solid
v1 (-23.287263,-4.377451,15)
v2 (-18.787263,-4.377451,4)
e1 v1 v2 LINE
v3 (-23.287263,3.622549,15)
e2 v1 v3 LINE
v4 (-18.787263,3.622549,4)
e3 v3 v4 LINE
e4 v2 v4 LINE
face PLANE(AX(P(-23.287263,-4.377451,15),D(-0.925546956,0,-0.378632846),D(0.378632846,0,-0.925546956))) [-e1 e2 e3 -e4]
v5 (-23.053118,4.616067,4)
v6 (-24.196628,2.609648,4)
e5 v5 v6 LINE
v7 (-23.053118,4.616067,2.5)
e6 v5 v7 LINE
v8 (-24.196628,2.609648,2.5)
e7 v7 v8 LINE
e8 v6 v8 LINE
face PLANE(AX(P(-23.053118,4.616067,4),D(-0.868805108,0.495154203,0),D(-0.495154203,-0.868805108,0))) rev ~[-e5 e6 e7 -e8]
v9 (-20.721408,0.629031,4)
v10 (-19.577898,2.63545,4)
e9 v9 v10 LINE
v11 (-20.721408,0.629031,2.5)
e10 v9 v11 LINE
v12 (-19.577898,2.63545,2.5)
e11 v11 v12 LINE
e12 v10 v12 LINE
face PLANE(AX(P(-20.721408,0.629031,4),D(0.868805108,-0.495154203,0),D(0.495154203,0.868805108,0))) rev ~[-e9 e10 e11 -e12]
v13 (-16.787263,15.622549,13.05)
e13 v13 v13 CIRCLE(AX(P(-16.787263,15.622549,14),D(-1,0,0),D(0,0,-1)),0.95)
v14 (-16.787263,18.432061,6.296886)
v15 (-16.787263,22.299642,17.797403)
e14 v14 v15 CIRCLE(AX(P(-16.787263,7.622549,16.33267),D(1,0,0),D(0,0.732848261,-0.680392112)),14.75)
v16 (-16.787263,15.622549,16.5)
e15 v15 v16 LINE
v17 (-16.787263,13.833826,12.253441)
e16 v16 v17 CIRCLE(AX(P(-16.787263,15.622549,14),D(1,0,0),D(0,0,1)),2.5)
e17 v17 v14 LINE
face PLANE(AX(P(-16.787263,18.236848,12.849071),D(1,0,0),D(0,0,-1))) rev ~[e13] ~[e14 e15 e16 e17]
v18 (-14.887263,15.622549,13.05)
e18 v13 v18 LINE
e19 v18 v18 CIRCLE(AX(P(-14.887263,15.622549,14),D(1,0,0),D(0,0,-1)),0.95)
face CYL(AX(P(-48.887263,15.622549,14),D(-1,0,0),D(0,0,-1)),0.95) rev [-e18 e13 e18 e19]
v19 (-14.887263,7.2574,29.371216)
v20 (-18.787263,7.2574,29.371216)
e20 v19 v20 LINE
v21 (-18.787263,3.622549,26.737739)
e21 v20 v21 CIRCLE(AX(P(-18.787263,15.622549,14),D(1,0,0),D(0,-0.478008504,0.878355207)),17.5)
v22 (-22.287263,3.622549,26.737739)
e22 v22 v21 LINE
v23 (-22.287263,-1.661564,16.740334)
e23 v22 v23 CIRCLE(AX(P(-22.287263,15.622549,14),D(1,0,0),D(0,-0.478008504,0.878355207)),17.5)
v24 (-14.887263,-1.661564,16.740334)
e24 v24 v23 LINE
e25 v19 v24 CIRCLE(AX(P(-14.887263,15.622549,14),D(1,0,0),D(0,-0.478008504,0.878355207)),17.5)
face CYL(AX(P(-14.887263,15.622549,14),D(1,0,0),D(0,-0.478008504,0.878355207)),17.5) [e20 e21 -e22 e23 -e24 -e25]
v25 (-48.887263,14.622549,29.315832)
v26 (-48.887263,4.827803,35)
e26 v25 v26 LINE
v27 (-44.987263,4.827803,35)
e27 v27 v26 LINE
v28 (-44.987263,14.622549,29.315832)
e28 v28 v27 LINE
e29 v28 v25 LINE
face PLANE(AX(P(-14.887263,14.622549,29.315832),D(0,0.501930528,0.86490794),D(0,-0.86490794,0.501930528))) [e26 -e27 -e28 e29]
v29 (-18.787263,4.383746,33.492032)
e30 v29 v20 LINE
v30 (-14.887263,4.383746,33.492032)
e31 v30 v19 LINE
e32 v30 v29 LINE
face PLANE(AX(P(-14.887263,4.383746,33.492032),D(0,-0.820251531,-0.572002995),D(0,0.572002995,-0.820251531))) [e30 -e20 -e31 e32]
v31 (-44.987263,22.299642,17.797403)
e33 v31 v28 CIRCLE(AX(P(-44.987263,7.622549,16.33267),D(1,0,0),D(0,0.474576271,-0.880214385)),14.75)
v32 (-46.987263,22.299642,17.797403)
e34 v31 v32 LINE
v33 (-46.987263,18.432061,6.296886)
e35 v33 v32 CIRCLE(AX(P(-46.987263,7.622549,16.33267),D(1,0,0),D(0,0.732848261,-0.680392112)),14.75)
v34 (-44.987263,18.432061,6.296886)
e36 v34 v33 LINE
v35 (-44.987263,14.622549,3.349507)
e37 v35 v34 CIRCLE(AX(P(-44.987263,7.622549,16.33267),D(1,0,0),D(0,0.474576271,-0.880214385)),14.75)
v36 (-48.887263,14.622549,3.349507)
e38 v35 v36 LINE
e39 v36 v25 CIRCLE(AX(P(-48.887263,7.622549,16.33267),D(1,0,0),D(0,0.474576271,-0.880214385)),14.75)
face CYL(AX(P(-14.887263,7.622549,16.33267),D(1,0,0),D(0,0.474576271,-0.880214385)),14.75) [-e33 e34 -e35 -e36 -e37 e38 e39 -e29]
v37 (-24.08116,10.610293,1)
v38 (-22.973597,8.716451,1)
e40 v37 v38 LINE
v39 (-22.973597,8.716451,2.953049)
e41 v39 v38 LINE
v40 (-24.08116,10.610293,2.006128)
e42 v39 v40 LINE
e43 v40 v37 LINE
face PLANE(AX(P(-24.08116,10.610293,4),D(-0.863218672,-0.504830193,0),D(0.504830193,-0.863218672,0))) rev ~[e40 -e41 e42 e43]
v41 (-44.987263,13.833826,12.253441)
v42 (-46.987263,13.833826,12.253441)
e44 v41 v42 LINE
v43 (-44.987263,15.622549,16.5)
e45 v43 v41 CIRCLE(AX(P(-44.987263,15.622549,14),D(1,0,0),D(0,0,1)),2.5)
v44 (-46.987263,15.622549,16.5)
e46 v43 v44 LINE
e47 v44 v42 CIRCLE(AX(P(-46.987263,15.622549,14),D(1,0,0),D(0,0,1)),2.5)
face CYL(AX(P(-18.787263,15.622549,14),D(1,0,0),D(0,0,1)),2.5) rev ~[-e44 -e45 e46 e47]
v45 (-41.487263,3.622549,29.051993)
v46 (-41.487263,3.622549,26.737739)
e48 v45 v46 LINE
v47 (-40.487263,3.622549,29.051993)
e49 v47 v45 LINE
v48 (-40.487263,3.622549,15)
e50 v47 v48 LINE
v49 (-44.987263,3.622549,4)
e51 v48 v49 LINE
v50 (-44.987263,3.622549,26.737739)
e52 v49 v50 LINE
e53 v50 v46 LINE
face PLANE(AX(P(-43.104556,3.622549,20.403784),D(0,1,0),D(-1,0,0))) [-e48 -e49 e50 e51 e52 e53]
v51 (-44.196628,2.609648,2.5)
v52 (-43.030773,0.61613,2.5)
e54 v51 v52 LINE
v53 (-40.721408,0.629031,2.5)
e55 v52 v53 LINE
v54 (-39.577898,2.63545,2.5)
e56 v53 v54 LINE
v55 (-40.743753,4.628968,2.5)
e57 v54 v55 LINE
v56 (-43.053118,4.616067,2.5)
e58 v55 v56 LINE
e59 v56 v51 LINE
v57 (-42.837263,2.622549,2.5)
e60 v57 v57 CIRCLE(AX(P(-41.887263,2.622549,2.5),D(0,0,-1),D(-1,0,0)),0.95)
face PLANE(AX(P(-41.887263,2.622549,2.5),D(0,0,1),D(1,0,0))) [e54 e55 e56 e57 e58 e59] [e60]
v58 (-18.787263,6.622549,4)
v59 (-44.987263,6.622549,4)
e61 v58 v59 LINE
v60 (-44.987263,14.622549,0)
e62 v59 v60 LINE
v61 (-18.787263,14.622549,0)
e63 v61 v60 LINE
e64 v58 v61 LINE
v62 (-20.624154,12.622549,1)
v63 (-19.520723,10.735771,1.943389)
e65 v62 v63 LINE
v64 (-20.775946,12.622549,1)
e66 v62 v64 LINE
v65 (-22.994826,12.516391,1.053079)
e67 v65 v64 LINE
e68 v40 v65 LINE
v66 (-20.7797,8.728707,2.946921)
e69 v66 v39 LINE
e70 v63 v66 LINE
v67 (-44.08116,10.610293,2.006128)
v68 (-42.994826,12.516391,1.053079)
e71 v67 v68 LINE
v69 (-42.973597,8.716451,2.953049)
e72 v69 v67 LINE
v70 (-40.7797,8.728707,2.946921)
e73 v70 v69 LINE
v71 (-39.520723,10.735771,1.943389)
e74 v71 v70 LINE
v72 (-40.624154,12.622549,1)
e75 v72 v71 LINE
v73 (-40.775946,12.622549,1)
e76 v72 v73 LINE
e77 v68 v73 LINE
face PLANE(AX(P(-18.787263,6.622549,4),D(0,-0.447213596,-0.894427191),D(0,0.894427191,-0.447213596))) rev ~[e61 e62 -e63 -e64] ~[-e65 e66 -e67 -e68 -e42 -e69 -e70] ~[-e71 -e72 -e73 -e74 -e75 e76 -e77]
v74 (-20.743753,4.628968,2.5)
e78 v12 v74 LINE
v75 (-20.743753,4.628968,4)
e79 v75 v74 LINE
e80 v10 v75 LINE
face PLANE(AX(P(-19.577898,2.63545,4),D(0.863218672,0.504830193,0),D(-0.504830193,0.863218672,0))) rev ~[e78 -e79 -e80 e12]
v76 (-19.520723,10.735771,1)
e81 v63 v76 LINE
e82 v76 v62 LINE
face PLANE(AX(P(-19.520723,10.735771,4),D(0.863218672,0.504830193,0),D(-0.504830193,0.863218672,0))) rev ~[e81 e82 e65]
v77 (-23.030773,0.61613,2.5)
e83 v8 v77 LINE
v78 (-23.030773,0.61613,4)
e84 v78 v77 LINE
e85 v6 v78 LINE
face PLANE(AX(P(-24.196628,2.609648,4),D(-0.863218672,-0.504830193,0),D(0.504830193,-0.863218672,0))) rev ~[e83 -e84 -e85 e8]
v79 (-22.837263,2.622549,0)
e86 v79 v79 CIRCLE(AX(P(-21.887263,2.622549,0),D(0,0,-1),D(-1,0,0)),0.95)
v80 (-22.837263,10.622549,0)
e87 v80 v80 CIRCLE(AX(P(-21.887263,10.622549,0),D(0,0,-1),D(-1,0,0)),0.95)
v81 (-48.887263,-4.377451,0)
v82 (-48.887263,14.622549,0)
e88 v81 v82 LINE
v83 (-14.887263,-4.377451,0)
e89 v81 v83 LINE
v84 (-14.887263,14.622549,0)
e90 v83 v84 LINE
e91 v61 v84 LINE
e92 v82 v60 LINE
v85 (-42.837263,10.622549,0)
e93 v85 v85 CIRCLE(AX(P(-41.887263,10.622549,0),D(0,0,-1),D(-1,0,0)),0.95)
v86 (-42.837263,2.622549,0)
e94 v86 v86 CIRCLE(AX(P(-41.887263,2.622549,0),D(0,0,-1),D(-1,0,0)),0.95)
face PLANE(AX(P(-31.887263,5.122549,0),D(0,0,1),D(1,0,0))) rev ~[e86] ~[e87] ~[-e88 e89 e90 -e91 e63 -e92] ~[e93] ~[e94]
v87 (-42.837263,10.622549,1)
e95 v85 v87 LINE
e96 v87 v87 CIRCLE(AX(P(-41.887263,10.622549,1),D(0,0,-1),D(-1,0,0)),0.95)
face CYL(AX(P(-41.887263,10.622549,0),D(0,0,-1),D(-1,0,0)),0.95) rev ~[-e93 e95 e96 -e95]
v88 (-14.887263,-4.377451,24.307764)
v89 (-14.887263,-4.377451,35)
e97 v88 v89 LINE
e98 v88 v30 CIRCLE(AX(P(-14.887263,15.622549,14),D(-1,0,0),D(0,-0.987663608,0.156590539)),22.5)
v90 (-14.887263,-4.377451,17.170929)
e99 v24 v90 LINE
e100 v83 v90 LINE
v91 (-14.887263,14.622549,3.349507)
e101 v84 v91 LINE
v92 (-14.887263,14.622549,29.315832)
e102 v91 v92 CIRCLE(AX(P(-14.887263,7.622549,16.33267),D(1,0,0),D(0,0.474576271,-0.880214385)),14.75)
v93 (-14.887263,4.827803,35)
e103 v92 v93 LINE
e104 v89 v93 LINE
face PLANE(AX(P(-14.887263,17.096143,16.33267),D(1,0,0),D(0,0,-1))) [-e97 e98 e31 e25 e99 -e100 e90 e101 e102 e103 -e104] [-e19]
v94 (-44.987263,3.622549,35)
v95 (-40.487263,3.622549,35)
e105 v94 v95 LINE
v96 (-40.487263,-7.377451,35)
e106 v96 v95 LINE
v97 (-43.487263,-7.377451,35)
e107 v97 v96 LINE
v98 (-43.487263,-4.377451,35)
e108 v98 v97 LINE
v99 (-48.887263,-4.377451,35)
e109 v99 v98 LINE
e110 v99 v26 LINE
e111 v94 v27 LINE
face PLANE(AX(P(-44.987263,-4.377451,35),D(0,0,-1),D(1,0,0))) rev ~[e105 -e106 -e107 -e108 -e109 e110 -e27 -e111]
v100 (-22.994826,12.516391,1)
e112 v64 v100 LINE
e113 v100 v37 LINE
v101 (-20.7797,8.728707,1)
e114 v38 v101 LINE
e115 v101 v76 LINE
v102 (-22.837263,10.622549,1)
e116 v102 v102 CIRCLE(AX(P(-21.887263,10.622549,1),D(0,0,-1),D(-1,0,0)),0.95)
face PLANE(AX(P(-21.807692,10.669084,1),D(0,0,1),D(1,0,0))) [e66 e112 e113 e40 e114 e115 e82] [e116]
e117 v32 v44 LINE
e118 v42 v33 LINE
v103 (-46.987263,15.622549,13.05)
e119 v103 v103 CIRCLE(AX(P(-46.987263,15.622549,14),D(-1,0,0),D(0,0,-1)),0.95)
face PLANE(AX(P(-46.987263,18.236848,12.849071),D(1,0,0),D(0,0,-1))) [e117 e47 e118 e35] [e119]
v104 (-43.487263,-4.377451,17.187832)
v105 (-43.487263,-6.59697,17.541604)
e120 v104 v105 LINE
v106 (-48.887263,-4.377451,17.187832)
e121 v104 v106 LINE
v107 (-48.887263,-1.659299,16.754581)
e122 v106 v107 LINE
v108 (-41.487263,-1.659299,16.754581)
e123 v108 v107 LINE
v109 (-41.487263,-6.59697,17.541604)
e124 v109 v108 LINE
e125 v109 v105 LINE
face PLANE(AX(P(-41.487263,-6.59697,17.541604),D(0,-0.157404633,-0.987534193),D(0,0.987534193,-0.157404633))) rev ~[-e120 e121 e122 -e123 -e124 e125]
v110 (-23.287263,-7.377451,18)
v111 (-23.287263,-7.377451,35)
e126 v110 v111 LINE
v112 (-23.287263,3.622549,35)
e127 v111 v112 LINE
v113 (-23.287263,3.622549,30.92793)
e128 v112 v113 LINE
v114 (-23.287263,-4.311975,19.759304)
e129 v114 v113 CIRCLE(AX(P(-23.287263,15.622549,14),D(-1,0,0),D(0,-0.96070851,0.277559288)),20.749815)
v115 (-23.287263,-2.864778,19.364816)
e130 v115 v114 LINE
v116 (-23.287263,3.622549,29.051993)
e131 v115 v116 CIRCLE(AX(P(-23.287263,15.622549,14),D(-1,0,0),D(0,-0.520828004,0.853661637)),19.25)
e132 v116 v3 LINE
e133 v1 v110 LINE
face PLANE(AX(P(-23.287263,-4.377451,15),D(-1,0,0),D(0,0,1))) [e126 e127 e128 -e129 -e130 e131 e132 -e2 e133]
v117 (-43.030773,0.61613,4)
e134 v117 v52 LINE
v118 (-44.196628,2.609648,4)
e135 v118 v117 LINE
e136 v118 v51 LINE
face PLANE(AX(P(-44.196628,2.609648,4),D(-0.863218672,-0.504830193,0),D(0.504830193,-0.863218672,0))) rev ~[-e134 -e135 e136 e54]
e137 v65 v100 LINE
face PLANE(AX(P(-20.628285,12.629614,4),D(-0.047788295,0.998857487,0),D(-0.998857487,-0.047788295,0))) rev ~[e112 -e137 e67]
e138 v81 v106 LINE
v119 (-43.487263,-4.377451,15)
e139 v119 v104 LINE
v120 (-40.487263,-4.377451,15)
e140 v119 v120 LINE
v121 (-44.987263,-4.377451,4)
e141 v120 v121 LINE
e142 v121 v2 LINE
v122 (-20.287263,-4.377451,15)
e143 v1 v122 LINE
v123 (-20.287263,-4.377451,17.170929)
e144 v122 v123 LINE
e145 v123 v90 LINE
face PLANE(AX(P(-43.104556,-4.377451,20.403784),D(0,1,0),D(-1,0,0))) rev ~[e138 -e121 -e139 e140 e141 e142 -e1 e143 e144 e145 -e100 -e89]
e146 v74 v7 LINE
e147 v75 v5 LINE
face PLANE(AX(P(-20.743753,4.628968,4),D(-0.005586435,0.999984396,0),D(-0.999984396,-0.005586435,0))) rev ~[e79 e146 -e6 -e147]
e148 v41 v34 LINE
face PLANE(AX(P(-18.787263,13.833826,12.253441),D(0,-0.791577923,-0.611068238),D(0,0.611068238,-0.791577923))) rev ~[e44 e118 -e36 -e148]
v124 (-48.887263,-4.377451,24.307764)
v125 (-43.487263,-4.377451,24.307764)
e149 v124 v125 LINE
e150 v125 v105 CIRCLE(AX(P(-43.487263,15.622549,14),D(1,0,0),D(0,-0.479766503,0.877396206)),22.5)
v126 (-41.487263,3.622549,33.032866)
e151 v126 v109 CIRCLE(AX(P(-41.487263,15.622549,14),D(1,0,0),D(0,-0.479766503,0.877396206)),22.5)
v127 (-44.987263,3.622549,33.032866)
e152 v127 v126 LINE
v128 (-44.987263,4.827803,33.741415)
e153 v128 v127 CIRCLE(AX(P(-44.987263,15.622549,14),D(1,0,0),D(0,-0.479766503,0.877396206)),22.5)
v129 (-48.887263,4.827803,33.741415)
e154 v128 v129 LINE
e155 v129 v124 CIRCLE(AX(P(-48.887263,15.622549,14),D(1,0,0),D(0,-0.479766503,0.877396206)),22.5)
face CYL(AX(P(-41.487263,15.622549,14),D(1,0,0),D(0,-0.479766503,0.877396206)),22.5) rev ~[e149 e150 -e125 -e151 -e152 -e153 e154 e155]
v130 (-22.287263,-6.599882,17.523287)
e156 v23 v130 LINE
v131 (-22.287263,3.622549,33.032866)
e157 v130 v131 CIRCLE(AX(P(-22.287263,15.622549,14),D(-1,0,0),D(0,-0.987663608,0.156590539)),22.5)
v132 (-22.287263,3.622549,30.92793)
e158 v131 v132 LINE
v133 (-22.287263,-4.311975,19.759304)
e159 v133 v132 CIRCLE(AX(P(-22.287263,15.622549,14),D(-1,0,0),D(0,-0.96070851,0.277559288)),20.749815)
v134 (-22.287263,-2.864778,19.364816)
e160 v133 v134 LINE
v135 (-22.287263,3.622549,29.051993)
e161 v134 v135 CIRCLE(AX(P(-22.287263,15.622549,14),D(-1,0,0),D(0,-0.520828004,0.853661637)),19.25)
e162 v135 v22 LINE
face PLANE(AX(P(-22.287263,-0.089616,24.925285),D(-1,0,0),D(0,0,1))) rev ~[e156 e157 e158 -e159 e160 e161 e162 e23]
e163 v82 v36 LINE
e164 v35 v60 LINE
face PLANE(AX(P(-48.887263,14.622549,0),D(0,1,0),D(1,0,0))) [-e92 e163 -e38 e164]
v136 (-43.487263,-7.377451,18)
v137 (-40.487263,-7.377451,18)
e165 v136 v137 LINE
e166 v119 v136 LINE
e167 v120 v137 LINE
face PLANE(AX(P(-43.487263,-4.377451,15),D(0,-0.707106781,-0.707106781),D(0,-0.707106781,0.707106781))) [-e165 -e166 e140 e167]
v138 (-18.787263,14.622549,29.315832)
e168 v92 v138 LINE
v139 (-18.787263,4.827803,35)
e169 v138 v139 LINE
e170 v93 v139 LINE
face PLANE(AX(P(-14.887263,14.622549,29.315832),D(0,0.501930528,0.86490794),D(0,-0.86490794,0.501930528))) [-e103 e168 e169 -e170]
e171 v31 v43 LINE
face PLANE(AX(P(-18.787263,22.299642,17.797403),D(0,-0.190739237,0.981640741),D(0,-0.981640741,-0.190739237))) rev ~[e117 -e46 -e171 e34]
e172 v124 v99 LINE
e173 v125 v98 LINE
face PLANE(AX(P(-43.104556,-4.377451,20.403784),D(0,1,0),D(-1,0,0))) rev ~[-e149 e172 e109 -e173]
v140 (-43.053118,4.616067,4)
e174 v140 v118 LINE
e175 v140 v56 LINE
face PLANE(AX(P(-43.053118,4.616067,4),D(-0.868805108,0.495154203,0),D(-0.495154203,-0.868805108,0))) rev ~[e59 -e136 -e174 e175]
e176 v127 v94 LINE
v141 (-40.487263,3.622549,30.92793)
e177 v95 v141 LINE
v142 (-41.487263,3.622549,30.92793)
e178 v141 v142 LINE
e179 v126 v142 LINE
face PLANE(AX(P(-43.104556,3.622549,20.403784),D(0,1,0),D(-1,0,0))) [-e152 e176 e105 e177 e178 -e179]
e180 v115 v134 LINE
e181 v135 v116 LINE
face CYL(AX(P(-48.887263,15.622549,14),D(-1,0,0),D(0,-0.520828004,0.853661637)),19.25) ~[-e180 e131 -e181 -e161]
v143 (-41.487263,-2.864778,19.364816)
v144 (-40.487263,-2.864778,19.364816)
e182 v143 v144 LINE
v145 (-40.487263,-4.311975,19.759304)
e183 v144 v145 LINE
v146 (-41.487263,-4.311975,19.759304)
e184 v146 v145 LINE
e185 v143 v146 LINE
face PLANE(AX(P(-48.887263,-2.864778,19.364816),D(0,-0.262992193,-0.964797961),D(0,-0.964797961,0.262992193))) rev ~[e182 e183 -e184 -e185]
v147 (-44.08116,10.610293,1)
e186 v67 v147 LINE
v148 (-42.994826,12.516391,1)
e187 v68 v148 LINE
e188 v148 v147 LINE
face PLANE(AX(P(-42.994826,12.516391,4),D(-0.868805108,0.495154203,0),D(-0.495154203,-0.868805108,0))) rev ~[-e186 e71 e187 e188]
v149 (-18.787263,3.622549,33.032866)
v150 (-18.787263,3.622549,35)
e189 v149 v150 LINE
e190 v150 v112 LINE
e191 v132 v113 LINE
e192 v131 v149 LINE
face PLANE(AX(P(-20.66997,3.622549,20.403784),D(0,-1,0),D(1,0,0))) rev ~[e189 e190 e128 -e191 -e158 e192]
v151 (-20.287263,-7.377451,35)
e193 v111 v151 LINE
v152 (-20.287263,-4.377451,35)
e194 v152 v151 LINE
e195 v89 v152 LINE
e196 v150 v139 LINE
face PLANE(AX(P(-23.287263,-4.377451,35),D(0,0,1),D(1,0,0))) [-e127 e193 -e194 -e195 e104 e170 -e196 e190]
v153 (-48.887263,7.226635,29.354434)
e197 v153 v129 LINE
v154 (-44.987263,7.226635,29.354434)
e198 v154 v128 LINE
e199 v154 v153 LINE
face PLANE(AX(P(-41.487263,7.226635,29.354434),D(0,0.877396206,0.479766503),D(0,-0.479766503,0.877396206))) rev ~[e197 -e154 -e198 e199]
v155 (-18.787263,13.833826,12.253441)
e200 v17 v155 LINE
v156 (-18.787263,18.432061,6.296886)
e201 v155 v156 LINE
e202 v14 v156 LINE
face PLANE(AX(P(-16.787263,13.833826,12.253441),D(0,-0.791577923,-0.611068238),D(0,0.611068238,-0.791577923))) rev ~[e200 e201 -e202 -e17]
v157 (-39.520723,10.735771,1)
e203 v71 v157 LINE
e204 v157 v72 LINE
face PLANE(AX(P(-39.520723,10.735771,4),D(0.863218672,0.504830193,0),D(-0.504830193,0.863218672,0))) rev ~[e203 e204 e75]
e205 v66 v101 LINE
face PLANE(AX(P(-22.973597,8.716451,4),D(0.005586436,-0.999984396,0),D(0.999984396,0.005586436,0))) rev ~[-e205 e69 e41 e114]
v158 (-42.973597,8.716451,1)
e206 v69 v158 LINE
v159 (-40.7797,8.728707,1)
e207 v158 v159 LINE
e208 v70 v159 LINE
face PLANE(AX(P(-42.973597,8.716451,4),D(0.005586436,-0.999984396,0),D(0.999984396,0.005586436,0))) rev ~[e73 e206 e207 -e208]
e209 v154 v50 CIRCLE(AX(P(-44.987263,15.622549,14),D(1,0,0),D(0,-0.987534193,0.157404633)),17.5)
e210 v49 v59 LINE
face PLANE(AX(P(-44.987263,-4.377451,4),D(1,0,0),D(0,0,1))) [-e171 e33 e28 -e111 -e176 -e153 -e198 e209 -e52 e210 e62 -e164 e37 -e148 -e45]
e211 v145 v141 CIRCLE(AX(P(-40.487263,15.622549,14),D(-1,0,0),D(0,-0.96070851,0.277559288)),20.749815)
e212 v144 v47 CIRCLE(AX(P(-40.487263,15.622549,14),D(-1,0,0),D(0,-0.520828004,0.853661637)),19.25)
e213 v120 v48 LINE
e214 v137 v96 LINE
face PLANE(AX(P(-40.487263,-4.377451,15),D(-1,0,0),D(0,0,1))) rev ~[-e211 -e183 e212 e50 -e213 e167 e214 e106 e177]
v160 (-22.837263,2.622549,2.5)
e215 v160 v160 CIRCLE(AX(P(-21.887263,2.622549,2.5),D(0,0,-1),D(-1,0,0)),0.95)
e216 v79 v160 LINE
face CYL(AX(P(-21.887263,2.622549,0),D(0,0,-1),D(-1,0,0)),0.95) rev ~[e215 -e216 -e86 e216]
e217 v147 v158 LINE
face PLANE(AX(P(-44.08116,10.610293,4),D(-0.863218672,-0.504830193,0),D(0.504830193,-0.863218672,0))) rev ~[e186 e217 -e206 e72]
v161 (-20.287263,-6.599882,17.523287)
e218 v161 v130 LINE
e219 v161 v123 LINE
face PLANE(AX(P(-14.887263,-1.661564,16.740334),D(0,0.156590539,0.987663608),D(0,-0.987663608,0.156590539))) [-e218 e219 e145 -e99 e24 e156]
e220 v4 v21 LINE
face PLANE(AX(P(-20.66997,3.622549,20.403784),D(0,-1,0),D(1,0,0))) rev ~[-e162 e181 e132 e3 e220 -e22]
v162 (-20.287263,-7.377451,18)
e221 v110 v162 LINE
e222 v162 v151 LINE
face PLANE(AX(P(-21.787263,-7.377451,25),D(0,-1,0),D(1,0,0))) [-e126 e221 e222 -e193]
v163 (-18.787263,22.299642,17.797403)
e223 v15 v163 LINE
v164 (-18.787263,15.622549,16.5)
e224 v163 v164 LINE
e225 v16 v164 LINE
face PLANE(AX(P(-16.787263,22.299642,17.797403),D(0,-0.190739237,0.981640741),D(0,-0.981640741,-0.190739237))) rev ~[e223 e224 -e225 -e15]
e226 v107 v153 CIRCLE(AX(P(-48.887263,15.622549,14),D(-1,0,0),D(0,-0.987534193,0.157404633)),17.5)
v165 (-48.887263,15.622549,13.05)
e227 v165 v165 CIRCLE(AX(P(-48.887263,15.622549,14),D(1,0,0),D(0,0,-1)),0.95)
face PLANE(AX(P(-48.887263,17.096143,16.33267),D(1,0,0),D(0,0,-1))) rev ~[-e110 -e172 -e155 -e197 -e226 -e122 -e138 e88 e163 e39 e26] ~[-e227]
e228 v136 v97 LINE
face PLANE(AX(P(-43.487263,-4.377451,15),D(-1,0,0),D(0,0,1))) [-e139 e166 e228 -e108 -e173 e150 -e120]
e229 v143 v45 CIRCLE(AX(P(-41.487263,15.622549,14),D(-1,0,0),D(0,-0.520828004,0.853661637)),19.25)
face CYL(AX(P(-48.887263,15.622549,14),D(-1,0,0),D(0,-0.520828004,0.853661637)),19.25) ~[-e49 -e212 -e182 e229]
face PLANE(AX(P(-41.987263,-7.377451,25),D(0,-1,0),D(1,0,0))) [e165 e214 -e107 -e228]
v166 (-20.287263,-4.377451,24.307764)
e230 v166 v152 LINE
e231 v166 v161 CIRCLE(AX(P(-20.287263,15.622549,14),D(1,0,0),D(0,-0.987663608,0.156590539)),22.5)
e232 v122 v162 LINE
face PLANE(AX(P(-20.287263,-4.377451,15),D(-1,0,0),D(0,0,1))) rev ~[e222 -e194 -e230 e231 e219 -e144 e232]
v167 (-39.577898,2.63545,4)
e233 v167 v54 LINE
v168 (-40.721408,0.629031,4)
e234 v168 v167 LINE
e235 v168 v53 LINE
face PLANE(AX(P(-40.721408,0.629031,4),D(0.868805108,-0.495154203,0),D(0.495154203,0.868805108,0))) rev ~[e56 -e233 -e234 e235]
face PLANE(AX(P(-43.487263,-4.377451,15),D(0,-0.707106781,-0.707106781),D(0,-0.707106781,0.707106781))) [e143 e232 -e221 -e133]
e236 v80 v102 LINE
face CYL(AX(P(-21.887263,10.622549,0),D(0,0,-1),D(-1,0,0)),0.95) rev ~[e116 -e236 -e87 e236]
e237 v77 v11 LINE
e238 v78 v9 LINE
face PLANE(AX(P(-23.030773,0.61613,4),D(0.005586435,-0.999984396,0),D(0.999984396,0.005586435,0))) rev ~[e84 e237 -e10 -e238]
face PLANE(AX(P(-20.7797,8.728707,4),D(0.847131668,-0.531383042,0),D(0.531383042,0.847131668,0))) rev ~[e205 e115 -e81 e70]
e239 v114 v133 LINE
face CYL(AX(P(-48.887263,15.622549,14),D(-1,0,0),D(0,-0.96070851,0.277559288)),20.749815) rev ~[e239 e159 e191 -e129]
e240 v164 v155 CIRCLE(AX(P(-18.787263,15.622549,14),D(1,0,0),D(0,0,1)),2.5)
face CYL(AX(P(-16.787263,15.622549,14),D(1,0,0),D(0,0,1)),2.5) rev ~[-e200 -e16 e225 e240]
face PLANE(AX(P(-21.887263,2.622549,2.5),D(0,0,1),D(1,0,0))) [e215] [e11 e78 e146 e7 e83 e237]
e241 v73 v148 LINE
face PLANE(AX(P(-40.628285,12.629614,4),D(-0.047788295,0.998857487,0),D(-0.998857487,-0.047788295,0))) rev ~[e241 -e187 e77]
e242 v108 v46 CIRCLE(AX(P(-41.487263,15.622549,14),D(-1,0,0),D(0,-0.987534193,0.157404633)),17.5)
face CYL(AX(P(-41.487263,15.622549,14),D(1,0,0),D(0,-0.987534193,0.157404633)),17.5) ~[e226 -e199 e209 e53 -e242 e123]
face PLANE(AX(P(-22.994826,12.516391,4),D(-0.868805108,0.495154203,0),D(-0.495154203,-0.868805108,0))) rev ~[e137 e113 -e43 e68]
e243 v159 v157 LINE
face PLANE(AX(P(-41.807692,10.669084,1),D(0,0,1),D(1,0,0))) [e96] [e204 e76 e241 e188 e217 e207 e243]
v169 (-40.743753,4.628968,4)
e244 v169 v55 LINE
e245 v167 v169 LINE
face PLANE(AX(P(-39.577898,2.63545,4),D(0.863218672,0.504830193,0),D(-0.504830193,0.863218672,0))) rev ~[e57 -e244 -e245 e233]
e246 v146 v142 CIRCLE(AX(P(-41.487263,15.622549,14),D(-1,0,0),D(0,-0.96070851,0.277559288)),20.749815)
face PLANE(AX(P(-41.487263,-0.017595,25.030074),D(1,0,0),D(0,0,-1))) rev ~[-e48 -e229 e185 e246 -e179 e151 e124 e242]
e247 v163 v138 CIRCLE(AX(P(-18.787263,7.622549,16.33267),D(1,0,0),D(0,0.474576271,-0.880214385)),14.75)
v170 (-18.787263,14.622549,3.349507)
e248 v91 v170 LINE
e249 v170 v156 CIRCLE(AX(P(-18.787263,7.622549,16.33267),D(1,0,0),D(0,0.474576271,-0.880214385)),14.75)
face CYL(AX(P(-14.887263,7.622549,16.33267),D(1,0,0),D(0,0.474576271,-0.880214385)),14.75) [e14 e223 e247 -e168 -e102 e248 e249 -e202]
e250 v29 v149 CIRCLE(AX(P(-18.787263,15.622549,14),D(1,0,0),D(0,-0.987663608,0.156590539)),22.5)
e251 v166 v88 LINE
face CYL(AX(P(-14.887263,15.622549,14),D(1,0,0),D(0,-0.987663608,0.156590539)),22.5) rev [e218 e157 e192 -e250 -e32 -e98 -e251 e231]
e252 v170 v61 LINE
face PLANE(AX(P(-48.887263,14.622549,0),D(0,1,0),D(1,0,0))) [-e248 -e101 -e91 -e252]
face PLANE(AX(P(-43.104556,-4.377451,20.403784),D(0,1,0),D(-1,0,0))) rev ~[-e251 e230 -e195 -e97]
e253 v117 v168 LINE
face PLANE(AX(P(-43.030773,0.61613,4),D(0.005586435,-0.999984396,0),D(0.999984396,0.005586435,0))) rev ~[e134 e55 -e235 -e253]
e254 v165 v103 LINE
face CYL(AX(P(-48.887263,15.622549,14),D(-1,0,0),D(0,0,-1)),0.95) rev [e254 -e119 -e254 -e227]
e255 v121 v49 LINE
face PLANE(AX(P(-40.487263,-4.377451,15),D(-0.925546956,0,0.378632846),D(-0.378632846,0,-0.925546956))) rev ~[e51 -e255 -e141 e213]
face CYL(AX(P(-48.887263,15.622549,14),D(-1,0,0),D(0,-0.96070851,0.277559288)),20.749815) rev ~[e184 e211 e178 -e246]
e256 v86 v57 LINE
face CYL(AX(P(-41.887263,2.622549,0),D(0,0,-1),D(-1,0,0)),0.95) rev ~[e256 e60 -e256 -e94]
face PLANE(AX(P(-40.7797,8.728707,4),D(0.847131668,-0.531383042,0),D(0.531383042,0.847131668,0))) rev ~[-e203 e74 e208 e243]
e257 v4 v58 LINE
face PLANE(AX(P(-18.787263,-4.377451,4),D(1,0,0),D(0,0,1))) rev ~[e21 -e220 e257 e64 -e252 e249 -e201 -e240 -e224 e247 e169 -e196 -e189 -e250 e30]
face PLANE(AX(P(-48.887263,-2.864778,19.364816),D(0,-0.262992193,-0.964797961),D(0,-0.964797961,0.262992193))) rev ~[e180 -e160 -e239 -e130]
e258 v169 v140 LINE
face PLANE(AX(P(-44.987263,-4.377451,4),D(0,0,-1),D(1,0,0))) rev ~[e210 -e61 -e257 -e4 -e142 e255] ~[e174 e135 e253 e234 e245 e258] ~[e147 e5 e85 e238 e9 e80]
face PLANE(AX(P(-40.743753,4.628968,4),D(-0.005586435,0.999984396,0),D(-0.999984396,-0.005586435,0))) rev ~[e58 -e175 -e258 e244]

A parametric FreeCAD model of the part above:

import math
import FreeCAD as App
import Part
import Sketcher

V = App.Vector
Q = App.Units.Quantity


def add_polygon(sketch, points):
    """Adds a closed chain of lines whose ends are joined by coincident constraints."""
    first, n = sketch.GeometryCount, len(points)
    for a, b in zip(points, points[1:] + points[:1]):
        sketch.addGeometry(Part.LineSegment(App.Vector(*a, 0), App.Vector(*b, 0)), False)
    for i in range(n):
        sketch.addConstraint(Sketcher.Constraint("Coincident", first + i, 2, first + (i + 1) % n, 1))

doc = App.newDocument("Part")
body = doc.addObject("PartDesign::Body", "Body")

sketch1 = body.newObject("Sketcher::SketchObject", "Sketch")
sketch1.AttachmentSupport = (doc.getObject("XY_Plane"), [""])
sketch1.MapMode = "FlatFace"
add_polygon(sketch1, [(-49, 15), (-49, -4), (-15, -4), (-15, 15)])
sketch1.addConstraint(Sketcher.Constraint("Vertical", 0))
sketch1.addConstraint(Sketcher.Constraint("Horizontal", 1))
sketch1.addConstraint(Sketcher.Constraint("Vertical", 2))
sketch1.addConstraint(Sketcher.Constraint("Horizontal", 3))
sketch1.addConstraint(Sketcher.Constraint("DistanceX", 1, 1, 1, 2, Q("34 mm")))
sketch1.addConstraint(Sketcher.Constraint("DistanceY", 0, 2, 0, 1, Q("19 mm")))
sketch1.addConstraint(Sketcher.Constraint("DistanceY", 0, 2, -1, 1, Q("4.377451 mm")))
sketch1.addConstraint(Sketcher.Constraint("DistanceX", 0, 2, -1, 1, Q("48.887263 mm")))
pad1 = body.newObject("PartDesign::Pad", "Pad")
pad1.Profile = sketch1
pad1.Length = 35

sketch2 = body.newObject("Sketcher::SketchObject", "Sketch001")
sketch2.AttachmentSupport = (doc.getObject("XZ_Plane"), [""])
sketch2.MapMode = "FlatFace"
sketch2.AttachmentOffset = App.Placement(V(0, 0, 4.377451), App.Rotation())
add_polygon(sketch2, [(-45, 35), (-45, 4), (-19, 4), (-19, 35)])
sketch2.addConstraint(Sketcher.Constraint("Vertical", 0))
sketch2.addConstraint(Sketcher.Constraint("Horizontal", 1))
sketch2.addConstraint(Sketcher.Constraint("Vertical", 2))
sketch2.addConstraint(Sketcher.Constraint("Horizontal", 3))
sketch2.addConstraint(Sketcher.Constraint("DistanceY", 0, 2, 0, 1, Q("31 mm")))
sketch2.addConstraint(Sketcher.Constraint("DistanceX", 1, 1, 1, 2, Q("26.2 mm")))
sketch2.addConstraint(Sketcher.Constraint("DistanceY", -1, 1, 0, 2, Q("4 mm")))
sketch2.addConstraint(Sketcher.Constraint("DistanceX", 0, 2, -1, 1, Q("44.987263 mm")))
pocket1 = body.newObject("PartDesign::Pocket", "Pocket")
pocket1.Profile = sketch2
pocket1.Length = 25

sketch3 = body.newObject("Sketcher::SketchObject", "Sketch002")
sketch3.AttachmentSupport = (doc.getObject("YZ_Plane"), [""])
sketch3.MapMode = "FlatFace"
sketch3.AttachmentOffset = App.Placement(V(0, 0, -18.787263), App.Rotation())
add_polygon(sketch3, [(6.6, 4), (14.6, 4), (14.6, 0)])
sketch3.addConstraint(Sketcher.Constraint("Horizontal", 0))
sketch3.addConstraint(Sketcher.Constraint("Vertical", 1))
sketch3.addConstraint(Sketcher.Constraint("PointOnObject", 1, 2, -1))
sketch3.addConstraint(Sketcher.Constraint("DistanceX", 0, 1, 0, 2, Q("8 mm")))
sketch3.addConstraint(Sketcher.Constraint("DistanceY", 1, 2, 1, 1, Q("4 mm")))
sketch3.addConstraint(Sketcher.Constraint("DistanceX", -1, 1, 0, 2, Q("14.622549 mm")))
pocket2 = body.newObject("PartDesign::Pocket", "Pocket001")
pocket2.Profile = sketch3
pocket2.Length = 26.2

sketch4 = body.newObject("Sketcher::SketchObject", "Sketch003")
sketch4.AttachmentSupport = (doc.getObject("YZ_Plane"), [""])
sketch4.MapMode = "FlatFace"
sketch4.AttachmentOffset = App.Placement(V(0, 0, -14.887263), App.Rotation())
sketch4.addGeometry(Part.LineSegment(V(15, 29, 0), V(15, 3, 0)), False)
sketch4.addGeometry(Part.ArcOfCircle(Part.Circle(V(8, 16, 0), V(0, 0, 1), 15), math.radians(-62), math.radians(62)), False)
sketch4.addConstraint(Sketcher.Constraint("Coincident", 0, 1, 1, 2))
sketch4.addConstraint(Sketcher.Constraint("Coincident", 1, 1, 0, 2))
sketch4.addConstraint(Sketcher.Constraint("Vertical", 0))
sketch4.addConstraint(Sketcher.Constraint("Radius", 1, Q("14.75 mm")))
sketch4.addConstraint(Sketcher.Constraint("DistanceX", 1, 3, 0, 1, Q("7 mm")))
sketch4.addConstraint(Sketcher.Constraint("DistanceX", -1, 1, 1, 3, Q("7.622549 mm")))
sketch4.addConstraint(Sketcher.Constraint("DistanceY", -1, 1, 1, 3, Q("16.33267 mm")))
pad2 = body.newObject("PartDesign::Pad", "Pad001")
pad2.Profile = sketch4
pad2.Length = 34
pad2.Reversed = True

sketch5 = body.newObject("Sketcher::SketchObject", "Sketch004")
sketch5.AttachmentSupport = (doc.getObject("XZ_Plane"), [""])
sketch5.MapMode = "FlatFace"
sketch5.AttachmentOffset = App.Placement(V(0, 0, -14.622549), App.Rotation())
add_polygon(sketch5, [(-45, 29), (-45, 3), (-19, 3), (-19, 29)])
sketch5.addConstraint(Sketcher.Constraint("Vertical", 0))
sketch5.addConstraint(Sketcher.Constraint("Horizontal", 1))
sketch5.addConstraint(Sketcher.Constraint("Vertical", 2))
sketch5.addConstraint(Sketcher.Constraint("Horizontal", 3))
sketch5.addConstraint(Sketcher.Constraint("DistanceX", 1, 1, 1, 2, Q("26.2 mm")))
sketch5.addConstraint(Sketcher.Constraint("DistanceY", 0, 2, 0, 1, Q("25.966324 mm")))
sketch5.addConstraint(Sketcher.Constraint("DistanceY", -1, 1, 2, 2, Q("29.315832 mm")))
sketch5.addConstraint(Sketcher.Constraint("DistanceX", 0, 2, -1, 1, Q("44.987263 mm")))
pocket3 = body.newObject("PartDesign::Pocket", "Pocket002")
pocket3.Profile = sketch5
pocket3.Length = 10

sketch6 = body.newObject("Sketcher::SketchObject", "Sketch005")
sketch6.AttachmentSupport = (doc.getObject("XY_Plane"), [""])
sketch6.MapMode = "FlatFace"
sketch6.addGeometry(Part.Circle(V(-41.9, 2.6, 0), V(0, 0, 1), 0.9), False)
sketch6.addGeometry(Part.Circle(V(-21.9, 2.6, 0), V(0, 0, 1), 0.9), False)
sketch6.addGeometry(Part.Circle(V(-21.9, 10.6, 0), V(0, 0, 1), 0.9), False)
sketch6.addGeometry(Part.Circle(V(-41.9, 10.6, 0), V(0, 0, 1), 0.9), False)
sketch6.addConstraint(Sketcher.Constraint("Equal", 0, 1))
sketch6.addConstraint(Sketcher.Constraint("Equal", 1, 2))
sketch6.addConstraint(Sketcher.Constraint("Equal", 2, 3))
sketch6.addConstraint(Sketcher.Constraint("Horizontal", 0, 3, 1, 3))
sketch6.addConstraint(Sketcher.Constraint("Horizontal", 2, 3, 3, 3))
sketch6.addConstraint(Sketcher.Constraint("Vertical", 1, 3, 2, 3))
sketch6.addConstraint(Sketcher.Constraint("Vertical", 0, 3, 3, 3))
sketch6.addConstraint(Sketcher.Constraint("Diameter", 0, Q("1.9 mm")))
sketch6.addConstraint(Sketcher.Constraint("DistanceX", 0, 3, 1, 3, Q("20 mm")))
sketch6.addConstraint(Sketcher.Constraint("DistanceY", 1, 3, 2, 3, Q("8 mm")))
sketch6.addConstraint(Sketcher.Constraint("DistanceY", -1, 1, 0, 3, Q("2.622549 mm")))
sketch6.addConstraint(Sketcher.Constraint("DistanceX", 0, 3, -1, 1, Q("41.887263 mm")))
pocket4 = body.newObject("PartDesign::Pocket", "Pocket003")
pocket4.Profile = sketch6
pocket4.Length = 4
pocket4.Reversed = True

sketch7 = body.newObject("Sketcher::SketchObject", "Sketch006")
sketch7.AttachmentSupport = (doc.getObject("XY_Plane"), [""])
sketch7.MapMode = "FlatFace"
sketch7.AttachmentOffset = App.Placement(V(0, 0, 4), App.Rotation())
add_polygon(sketch7, [(-43.030773, 0.61613), (-40.721408, 0.629031), (-39.577898, 2.63545), (-40.743753, 4.628968), (-43.053118, 4.616067), (-44.196628, 2.609648)])
add_polygon(sketch7, [(-23.030773, 0.61613), (-20.721408, 0.629031), (-19.577898, 2.63545), (-20.743753, 4.628968), (-23.053118, 4.616067), (-24.196628, 2.609648)])
sketch7.addConstraint(Sketcher.Constraint("Parallel", 0, 3))
sketch7.addConstraint(Sketcher.Constraint("Parallel", 1, 4))
sketch7.addConstraint(Sketcher.Constraint("Parallel", 2, 5))
sketch7.addConstraint(Sketcher.Constraint("Parallel", 3, 6))
sketch7.addConstraint(Sketcher.Constraint("Parallel", 4, 7))
sketch7.addConstraint(Sketcher.Constraint("Parallel", 5, 8))
sketch7.addConstraint(Sketcher.Constraint("Parallel", 6, 9))
sketch7.addConstraint(Sketcher.Constraint("Parallel", 7, 10))
sketch7.addConstraint(Sketcher.Constraint("Parallel", 8, 11))
sketch7.addConstraint(Sketcher.Constraint("Horizontal", 0, 2, 6, 2))
sketch7.addConstraint(Sketcher.Constraint("Horizontal", 1, 2, 7, 2))
sketch7.addConstraint(Sketcher.Constraint("Horizontal", 2, 2, 8, 2))
sketch7.addConstraint(Sketcher.Constraint("Horizontal", 3, 2, 9, 2))
sketch7.addConstraint(Sketcher.Constraint("Horizontal", 4, 2, 10, 2))
sketch7.addConstraint(Sketcher.Constraint("Equal", 0, 1))
sketch7.addConstraint(Sketcher.Constraint("Equal", 1, 2))
sketch7.addConstraint(Sketcher.Constraint("Equal", 2, 3))
sketch7.addConstraint(Sketcher.Constraint("DistanceX", 0, 2, 6, 2, Q("20 mm")))
sketch7.addConstraint(Sketcher.Constraint("Distance", 0, Q("2.309401 mm")))
sketch7.addConstraint(Sketcher.Constraint("DistanceX", 1, 2, -1, 1, Q("39.577898 mm")))
sketch7.addConstraint(Sketcher.Constraint("DistanceY", 3, 2, 2, 2, Q("0.012901 mm")))
sketch7.addConstraint(Sketcher.Constraint("DistanceY", -1, 1, 0, 2, Q("0.629031 mm")))
sketch7.addConstraint(Sketcher.Constraint("DistanceY", -1, 1, 1, 2, Q("2.63545 mm")))
sketch7.addConstraint(Sketcher.Constraint("DistanceY", -1, 1, 2, 2, Q("4.628968 mm")))
pocket5 = body.newObject("PartDesign::Pocket", "Pocket004")
pocket5.Profile = sketch7
pocket5.Length = 1.5

sketch8 = body.newObject("Sketcher::SketchObject", "Sketch007")
sketch8.AttachmentSupport = (doc.getObject("XY_Plane"), [""])
sketch8.MapMode = "FlatFace"
sketch8.AttachmentOffset = App.Placement(V(0, 0, 4), App.Rotation())
add_polygon(sketch8, [(-44.08116, 10.610293), (-42.973597, 8.716451), (-40.7797, 8.728707), (-39.520723, 10.735771), (-40.628285, 12.629614), (-42.994826, 12.516391)])
add_polygon(sketch8, [(-24.08116, 10.610293), (-22.973597, 8.716451), (-20.7797, 8.728707), (-19.520723, 10.735771), (-20.628285, 12.629614), (-22.994826, 12.516391)])
sketch8.addConstraint(Sketcher.Constraint("Parallel", 0, 3))
sketch8.addConstraint(Sketcher.Constraint("Parallel", 3, 6))
sketch8.addConstraint(Sketcher.Constraint("Parallel", 1, 7))
sketch8.addConstraint(Sketcher.Constraint("Parallel", 2, 8))
sketch8.addConstraint(Sketcher.Constraint("Parallel", 6, 9))
sketch8.addConstraint(Sketcher.Constraint("Parallel", 4, 10))
sketch8.addConstraint(Sketcher.Constraint("Parallel", 5, 11))
sketch8.addConstraint(Sketcher.Constraint("Horizontal", 0, 2, 6, 2))
sketch8.addConstraint(Sketcher.Constraint("Horizontal", 1, 2, 7, 2))
sketch8.addConstraint(Sketcher.Constraint("Horizontal", 2, 2, 8, 2))
sketch8.addConstraint(Sketcher.Constraint("Horizontal", 3, 2, 9, 2))
sketch8.addConstraint(Sketcher.Constraint("Horizontal", 4, 2, 10, 2))
sketch8.addConstraint(Sketcher.Constraint("Equal", 0, 1))
sketch8.addConstraint(Sketcher.Constraint("Equal", 1, 3))
sketch8.addConstraint(Sketcher.Constraint("Equal", 2, 4))
sketch8.addConstraint(Sketcher.Constraint("Equal", 3, 5))
sketch8.addConstraint(Sketcher.Constraint("DistanceX", 0, 2, 6, 2, Q("20 mm")))
sketch8.addConstraint(Sketcher.Constraint("DistanceX", 1, 2, -1, 1, Q("40.7797 mm")))
sketch8.addConstraint(Sketcher.Constraint("DistanceY", 5, 2, 4, 2, Q("1.906098 mm")))
sketch8.addConstraint(Sketcher.Constraint("Distance", 0, Q("2.193931 mm")))
sketch8.addConstraint(Sketcher.Constraint("DistanceY", -1, 1, 0, 2, Q("8.716451 mm")))
sketch8.addConstraint(Sketcher.Constraint("DistanceY", -1, 1, 2, 2, Q("10.735771 mm")))
sketch8.addConstraint(Sketcher.Constraint("DistanceY", -1, 1, 4, 2, Q("12.516391 mm")))
sketch8.addConstraint(Sketcher.Constraint("DistanceX", 4, 2, 3, 2, Q("2.366541 mm")))
pocket6 = body.newObject("PartDesign::Pocket", "Pocket005")
pocket6.Profile = sketch8
pocket6.Length = 3

sketch9 = body.newObject("Sketcher::SketchObject", "Sketch008")
sketch9.AttachmentSupport = (doc.getObject("YZ_Plane"), [""])
sketch9.MapMode = "FlatFace"
sketch9.AttachmentOffset = App.Placement(V(0, 0, -48.887263), App.Rotation())
sketch9.addGeometry(Part.Circle(V(15.6, 14, 0), V(0, 0, 1), 0.9), False)
sketch9.addConstraint(Sketcher.Constraint("Diameter", 0, Q("1.9 mm")))
sketch9.addConstraint(Sketcher.Constraint("DistanceY", -1, 1, 0, 3, Q("14 mm")))
sketch9.addConstraint(Sketcher.Constraint("DistanceX", -1, 1, 0, 3, Q("15.622549 mm")))
pocket7 = body.newObject("PartDesign::Pocket", "Pocket006")
pocket7.Profile = sketch9
pocket7.Length = 34
pocket7.Reversed = True

sketch10 = body.newObject("Sketcher::SketchObject", "Sketch009")
sketch10.AttachmentSupport = (doc.getObject("XZ_Plane"), [""])
sketch10.MapMode = "FlatFace"
sketch10.AttachmentOffset = App.Placement(V(0, 0, 4.377451), App.Rotation())
add_polygon(sketch10, [(-40.5, 35), (-45, 35), (-45, 4), (-40.5, 15)])
add_polygon(sketch10, [(-18.8, 35), (-23.3, 35), (-23.3, 15), (-18.8, 4)])
sketch10.addConstraint(Sketcher.Constraint("Horizontal", 0))
sketch10.addConstraint(Sketcher.Constraint("Vertical", 1))
sketch10.addConstraint(Sketcher.Constraint("Vertical", 3))
sketch10.addConstraint(Sketcher.Constraint("Horizontal", 4))
sketch10.addConstraint(Sketcher.Constraint("Vertical", 5))
sketch10.addConstraint(Sketcher.Constraint("Vertical", 7))
sketch10.addConstraint(Sketcher.Constraint("Horizontal", 3, 2, 4, 2))
sketch10.addConstraint(Sketcher.Constraint("Horizontal", 2, 2, 5, 2))
sketch10.addConstraint(Sketcher.Constraint("Horizontal", 1, 2, 6, 2))
sketch10.addConstraint(Sketcher.Constraint("Equal", 0, 4))
sketch10.addConstraint(Sketcher.Constraint("DistanceY", 1, 2, 1, 1, Q("31 mm")))
sketch10.addConstraint(Sketcher.Constraint("DistanceY", 3, 1, 3, 2, Q("20 mm")))
sketch10.addConstraint(Sketcher.Constraint("DistanceX", 0, 2, 0, 1, Q("4.5 mm")))
sketch10.addConstraint(Sketcher.Constraint("DistanceY", -1, 1, 0, 2, Q("35 mm")))
sketch10.addConstraint(Sketcher.Constraint("DistanceX", 3, 2, 4, 2, Q("17.2 mm")))
sketch10.addConstraint(Sketcher.Constraint("DistanceX", 0, 2, -1, 1, Q("44.987263 mm")))
pad3 = body.newObject("PartDesign::Pad", "Pad002")
pad3.Profile = sketch10
pad3.Length = 8
pad3.Reversed = True

sketch11 = body.newObject("Sketcher::SketchObject", "Sketch010")
sketch11.AttachmentSupport = (doc.getObject("YZ_Plane"), [""])
sketch11.MapMode = "FlatFace"
sketch11.AttachmentOffset = App.Placement(V(0, 0, -48.887263), App.Rotation())
sketch11.addGeometry(Part.LineSegment(V(-4.3, 19.8, 0), V(-2.9, 19.4, 0)), False)
sketch11.addGeometry(Part.ArcOfCircle(Part.Circle(V(15.6, 14, 0), V(0, 0, 1), 19.3), math.radians(121), math.radians(164)), False)
sketch11.addGeometry(Part.LineSegment(V(5.6, 30.4, 0), V(4.7, 31.7, 0)), False)
sketch11.addGeometry(Part.ArcOfCircle(Part.Circle(V(15.6, 14, 0), V(0, 0, 1), 20.7), math.radians(122), math.radians(164)), False)
sketch11.addConstraint(Sketcher.Constraint("Coincident", 0, 2, 1, 2))
sketch11.addConstraint(Sketcher.Constraint("Coincident", 1, 1, 2, 1))
sketch11.addConstraint(Sketcher.Constraint("Coincident", 2, 2, 3, 1))
sketch11.addConstraint(Sketcher.Constraint("Coincident", 3, 2, 0, 1))
sketch11.addConstraint(Sketcher.Constraint("Coincident", 3, 3, 1, 3))
sketch11.addConstraint(Sketcher.Constraint("Radius", 1, Q("19.25 mm")))
sketch11.addConstraint(Sketcher.Constraint("DistanceY", -1, 1, 1, 3, Q("14 mm")))
sketch11.addConstraint(Sketcher.Constraint("Distance", 0, Q("1.5 mm")))
sketch11.addConstraint(Sketcher.Constraint("Angle", 2, Q("124.890019 deg")))
sketch11.addConstraint(Sketcher.Constraint("Radius", 3, Q("20.749815 mm")))
sketch11.addConstraint(Sketcher.Constraint("DistanceX", 0, 2, 2, 2, Q("7.602 mm")))
sketch11.addConstraint(Sketcher.Constraint("DistanceX", -1, 1, 1, 3, Q("15.622549 mm")))
sketch11.addConstraint(Sketcher.Constraint("DistanceX", -1, 1, 1, 1, Q("5.59661 mm")))
pocket8 = body.newObject("PartDesign::Pocket", "Pocket007")
pocket8.Profile = sketch11
pocket8.Length = 34
pocket8.Reversed = True

sketch12 = body.newObject("Sketcher::SketchObject", "Sketch011")
sketch12.AttachmentSupport = (doc.getObject("XZ_Plane"), [""])
sketch12.MapMode = "FlatFace"
sketch12.AttachmentOffset = App.Placement(V(0, 0, 4.377451), App.Rotation())
add_polygon(sketch12, [(-23.3, 35), (-23.3, 15), (-20.3, 15), (-20.3, 35)])
add_polygon(sketch12, [(-43.5, 35), (-43.5, 15), (-40.5, 15), (-40.5, 35)])
sketch12.addConstraint(Sketcher.Constraint("Vertical", 0))
sketch12.addConstraint(Sketcher.Constraint("Horizontal", 1))
sketch12.addConstraint(Sketcher.Constraint("Vertical", 2))
sketch12.addConstraint(Sketcher.Constraint("Horizontal", 3))
sketch12.addConstraint(Sketcher.Constraint("Vertical", 4))
sketch12.addConstraint(Sketcher.Constraint("Horizontal", 5))
sketch12.addConstraint(Sketcher.Constraint("Vertical", 6))
sketch12.addConstraint(Sketcher.Constraint("Horizontal", 7))
sketch12.addConstraint(Sketcher.Constraint("Horizontal", 1, 2, 4, 2))
sketch12.addConstraint(Sketcher.Constraint("Horizontal", 3, 2, 6, 2))
sketch12.addConstraint(Sketcher.Constraint("Equal", 3, 5))
sketch12.addConstraint(Sketcher.Constraint("DistanceX", 1, 1, 1, 2, Q("3 mm")))
sketch12.addConstraint(Sketcher.Constraint("DistanceY", 0, 2, 0, 1, Q("20 mm")))
sketch12.addConstraint(Sketcher.Constraint("DistanceY", -1, 1, 0, 2, Q("15 mm")))
sketch12.addConstraint(Sketcher.Constraint("DistanceX", 4, 2, 0, 2, Q("20.2 mm")))
sketch12.addConstraint(Sketcher.Constraint("DistanceX", 0, 2, -1, 1, Q("23.287263 mm")))
pad4 = body.newObject("PartDesign::Pad", "Pad003")
pad4.Profile = sketch12
pad4.Length = 3

sketch13 = body.newObject("Sketcher::SketchObject", "Sketch012")
sketch13.AttachmentSupport = (doc.getObject("YZ_Plane"), [""])
sketch13.MapMode = "FlatFace"
sketch13.AttachmentOffset = App.Placement(V(0, 0, -43.487263), App.Rotation())
add_polygon(sketch13, [(-7.4, 18), (-7.4, 15), (-4.4, 15)])
sketch13.addConstraint(Sketcher.Constraint("Vertical", 0))
sketch13.addConstraint(Sketcher.Constraint("Horizontal", 1))
sketch13.addConstraint(Sketcher.Constraint("Equal", 1, 0))
sketch13.addConstraint(Sketcher.Constraint("DistanceX", 1, 1, 1, 2, Q("3 mm")))
sketch13.addConstraint(Sketcher.Constraint("DistanceY", -1, 1, 0, 2, Q("15 mm")))
sketch13.addConstraint(Sketcher.Constraint("DistanceX", 0, 2, -1, 1, Q("7.377451 mm")))
pocket9 = body.newObject("PartDesign::Pocket", "Pocket008")
pocket9.Profile = sketch13
pocket9.Length = 23.2
pocket9.Reversed = True

sketch14 = body.newObject("Sketcher::SketchObject", "Sketch013")
sketch14.AttachmentSupport = (doc.getObject("YZ_Plane"), [""])
sketch14.MapMode = "FlatFace"
sketch14.AttachmentOffset = App.Placement(V(0, 0, -14.887263), App.Rotation())
sketch14.addGeometry(Part.LineSegment(V(-7, 18, 0), V(-2, 17, 0)), False)
sketch14.addGeometry(Part.ArcOfCircle(Part.Circle(V(16, 14, 0), V(0, 0, 1), 17), math.radians(119), math.radians(171)), False)
sketch14.addGeometry(Part.LineSegment(V(7, 29, 0), V(4, 33, 0)), False)
sketch14.addGeometry(Part.ArcOfCircle(Part.Circle(V(16, 14, 0), V(0, 0, 1), 23), math.radians(120), math.radians(171)), False)
sketch14.addConstraint(Sketcher.Constraint("Coincident", 0, 2, 1, 2))
sketch14.addConstraint(Sketcher.Constraint("Coincident", 1, 1, 2, 1))
sketch14.addConstraint(Sketcher.Constraint("Coincident", 2, 2, 3, 1))
sketch14.addConstraint(Sketcher.Constraint("Coincident", 3, 2, 0, 1))
sketch14.addConstraint(Sketcher.Constraint("Coincident", 3, 3, 1, 3))
sketch14.addConstraint(Sketcher.Constraint("Radius", 1, Q("17.5 mm")))
sketch14.addConstraint(Sketcher.Constraint("Radius", 3, Q("22.5 mm")))
sketch14.addConstraint(Sketcher.Constraint("DistanceY", -1, 1, 1, 3, Q("14 mm")))
sketch14.addConstraint(Sketcher.Constraint("Angle", 2, Q("124.890019 deg")))
sketch14.addConstraint(Sketcher.Constraint("DistanceX", -1, 1, 1, 1, Q("7.2574 mm")))
sketch14.addConstraint(Sketcher.Constraint("DistanceX", -1, 1, 1, 3, Q("15.622549 mm")))
sketch14.addConstraint(Sketcher.Constraint("DistanceY", 0, 2, 1, 1, Q("12.630882 mm")))
sketch14.addConstraint(Sketcher.Constraint("DistanceX", 3, 2, 0, 2, Q("4.938318 mm")))
pocket10 = body.newObject("PartDesign::Pocket", "Pocket009")
pocket10.Profile = sketch14
pocket10.Length = 7.4

sketch15 = body.newObject("Sketcher::SketchObject", "Sketch014")
sketch15.AttachmentSupport = (doc.getObject("YZ_Plane"), [""])
sketch15.MapMode = "FlatFace"
sketch15.AttachmentOffset = App.Placement(V(0, 0, -41.487263), App.Rotation())
sketch15.addGeometry(Part.LineSegment(V(4.8, 33.7, 0), V(7.2, 29.4, 0)), False)
sketch15.addGeometry(Part.ArcOfCircle(Part.Circle(V(15.6, 14, 0), V(0, 0, 1), 17.5), math.radians(119), math.radians(171)), False)
sketch15.addGeometry(Part.LineSegment(V(-1.7, 16.8, 0), V(-6.6, 17.5, 0)), False)
sketch15.addGeometry(Part.ArcOfCircle(Part.Circle(V(15.6, 14, 0), V(0, 0, 1), 22.5), math.radians(119), math.radians(171)), False)
sketch15.addConstraint(Sketcher.Constraint("Coincident", 0, 2, 1, 1))
sketch15.addConstraint(Sketcher.Constraint("Coincident", 1, 2, 2, 1))
sketch15.addConstraint(Sketcher.Constraint("Coincident", 2, 2, 3, 2))
sketch15.addConstraint(Sketcher.Constraint("Coincident", 3, 1, 0, 1))
sketch15.addConstraint(Sketcher.Constraint("Coincident", 3, 3, 1, 3))
sketch15.addConstraint(Sketcher.Constraint("Radius", 1, Q("17.5 mm")))
sketch15.addConstraint(Sketcher.Constraint("Radius", 3, Q("22.5 mm")))
sketch15.addConstraint(Sketcher.Constraint("DistanceY", -1, 1, 1, 3, Q("14 mm")))
sketch15.addConstraint(Sketcher.Constraint("DistanceX", 1, 2, -1, 1, Q("1.659299 mm")))
sketch15.addConstraint(Sketcher.Constraint("DistanceX", -1, 1, 1, 3, Q("15.622549 mm")))
sketch15.addConstraint(Sketcher.Constraint("DistanceX", 2, 2, -1, 1, Q("6.59697 mm")))
sketch15.addConstraint(Sketcher.Constraint("DistanceY", 2, 2, 0, 2, Q("11.812829 mm")))
sketch15.addConstraint(Sketcher.Constraint("DistanceY", 0, 2, 3, 1, Q("4.386981 mm")))
pocket11 = body.newObject("PartDesign::Pocket", "Pocket010")
pocket11.Profile = sketch15
pocket11.Length = 7.4

sketch16 = body.newObject("Sketcher::SketchObject", "Sketch015")
sketch16.AttachmentSupport = (doc.getObject("YZ_Plane"), [""])
sketch16.MapMode = "FlatFace"
sketch16.AttachmentOffset = App.Placement(V(0, 0, -16.787263), App.Rotation())
sketch16.addGeometry(Part.LineSegment(V(15.6, 16.5, 0), V(22.3, 17.8, 0)), False)
sketch16.addGeometry(Part.ArcOfCircle(Part.Circle(V(7.6, 16.3, 0), V(0, 0, 1), 14.7), math.radians(-43), math.radians(6)), False)
sketch16.addGeometry(Part.LineSegment(V(18.4, 6.3, 0), V(13.8, 12.3, 0)), False)
sketch16.addGeometry(Part.ArcOfCircle(Part.Circle(V(15.6, 14, 0), V(0, 0, 1), 2.5), math.radians(90), math.radians(224)), False)
sketch16.addConstraint(Sketcher.Constraint("Coincident", 0, 2, 1, 2))
sketch16.addConstraint(Sketcher.Constraint("Coincident", 1, 1, 2, 1))
sketch16.addConstraint(Sketcher.Constraint("Coincident", 2, 2, 3, 2))
sketch16.addConstraint(Sketcher.Constraint("Coincident", 3, 1, 0, 1))
sketch16.addConstraint(Sketcher.Constraint("Radius", 3, Q("2.5 mm")))
sketch16.addConstraint(Sketcher.Constraint("Radius", 1, Q("14.75 mm")))
sketch16.addConstraint(Sketcher.Constraint("DistanceY", -1, 1, 3, 3, Q("14 mm")))
sketch16.addConstraint(Sketcher.Constraint("DistanceX", 1, 3, 3, 3, Q("8 mm")))
sketch16.addConstraint(Sketcher.Constraint("DistanceX", 1, 3, 3, 1, Q("8 mm")))
sketch16.addConstraint(Sketcher.Constraint("DistanceX", -1, 1, 1, 3, Q("7.622549 mm")))
sketch16.addConstraint(Sketcher.Constraint("DistanceY", -1, 1, 1, 3, Q("16.33267 mm")))
sketch16.addConstraint(Sketcher.Constraint("DistanceX", -1, 1, 0, 2, Q("22.299642 mm")))
sketch16.addConstraint(Sketcher.Constraint("DistanceX", -1, 1, 1, 1, Q("18.432061 mm")))
sketch16.addConstraint(Sketcher.Constraint("DistanceY", -1, 1, 2, 2, Q("12.253441 mm")))
pocket12 = body.newObject("PartDesign::Pocket", "Pocket011")
pocket12.Profile = sketch16
pocket12.Length = 2

sketch17 = body.newObject("Sketcher::SketchObject", "Sketch016")
sketch17.AttachmentSupport = (doc.getObject("YZ_Plane"), [""])
sketch17.MapMode = "FlatFace"
sketch17.AttachmentOffset = App.Placement(V(0, 0, -18.787263), App.Rotation())
sketch17.addGeometry(Part.LineSegment(V(15.6, 16.5, 0), V(22.3, 17.8, 0)), False)
sketch17.addGeometry(Part.ArcOfCircle(Part.Circle(V(7.6, 16.3, 0), V(0, 0, 1), 14.7), math.radians(-43), math.radians(6)), False)
sketch17.addGeometry(Part.LineSegment(V(18.4, 6.3, 0), V(13.8, 12.3, 0)), False)
sketch17.addGeometry(Part.ArcOfCircle(Part.Circle(V(15.6, 14, 0), V(0, 0, 1), 2.5), math.radians(90), math.radians(224)), False)
sketch17.addConstraint(Sketcher.Constraint("Coincident", 0, 2, 1, 2))
sketch17.addConstraint(Sketcher.Constraint("Coincident", 1, 1, 2, 1))
sketch17.addConstraint(Sketcher.Constraint("Coincident", 2, 2, 3, 2))
sketch17.addConstraint(Sketcher.Constraint("Coincident", 3, 1, 0, 1))
sketch17.addConstraint(Sketcher.Constraint("Radius", 3, Q("2.5 mm")))
sketch17.addConstraint(Sketcher.Constraint("Radius", 1, Q("14.75 mm")))
sketch17.addConstraint(Sketcher.Constraint("DistanceY", -1, 1, 3, 3, Q("14 mm")))
sketch17.addConstraint(Sketcher.Constraint("DistanceX", 1, 3, 3, 3, Q("8 mm")))
sketch17.addConstraint(Sketcher.Constraint("DistanceX", 1, 3, 3, 1, Q("8 mm")))
sketch17.addConstraint(Sketcher.Constraint("DistanceX", -1, 1, 1, 3, Q("7.622549 mm")))
sketch17.addConstraint(Sketcher.Constraint("DistanceY", -1, 1, 1, 3, Q("16.33267 mm")))
sketch17.addConstraint(Sketcher.Constraint("DistanceX", -1, 1, 0, 2, Q("22.299642 mm")))
sketch17.addConstraint(Sketcher.Constraint("DistanceX", -1, 1, 1, 1, Q("18.432061 mm")))
sketch17.addConstraint(Sketcher.Constraint("DistanceY", -1, 1, 2, 2, Q("12.253441 mm")))
pocket13 = body.newObject("PartDesign::Pocket", "Pocket012")
pocket13.Profile = sketch17
pocket13.Length = 28.2

sketch18 = body.newObject("Sketcher::SketchObject", "Sketch017")
sketch18.AttachmentSupport = (doc.getObject("YZ_Plane"), [""])
sketch18.MapMode = "FlatFace"
sketch18.AttachmentOffset = App.Placement(V(0, 0, -14.887263), App.Rotation())
add_polygon(sketch18, [(15, 29), (5, 35), (15, 35)])
sketch18.addConstraint(Sketcher.Constraint("Horizontal", 1))
sketch18.addConstraint(Sketcher.Constraint("Vertical", 2))
sketch18.addConstraint(Sketcher.Constraint("DistanceY", -1, 1, 0, 2, Q("35 mm")))
sketch18.addConstraint(Sketcher.Constraint("DistanceY", 2, 2, 2, 1, Q("5.684168 mm")))
sketch18.addConstraint(Sketcher.Constraint("Distance", 0, Q("11.324611 mm")))
sketch18.addConstraint(Sketcher.Constraint("DistanceX", -1, 1, 1, 2, Q("14.622549 mm")))
pocket14 = body.newObject("PartDesign::Pocket", "Pocket013")
pocket14.Profile = sketch18
pocket14.Length = 34

doc.recompute()
